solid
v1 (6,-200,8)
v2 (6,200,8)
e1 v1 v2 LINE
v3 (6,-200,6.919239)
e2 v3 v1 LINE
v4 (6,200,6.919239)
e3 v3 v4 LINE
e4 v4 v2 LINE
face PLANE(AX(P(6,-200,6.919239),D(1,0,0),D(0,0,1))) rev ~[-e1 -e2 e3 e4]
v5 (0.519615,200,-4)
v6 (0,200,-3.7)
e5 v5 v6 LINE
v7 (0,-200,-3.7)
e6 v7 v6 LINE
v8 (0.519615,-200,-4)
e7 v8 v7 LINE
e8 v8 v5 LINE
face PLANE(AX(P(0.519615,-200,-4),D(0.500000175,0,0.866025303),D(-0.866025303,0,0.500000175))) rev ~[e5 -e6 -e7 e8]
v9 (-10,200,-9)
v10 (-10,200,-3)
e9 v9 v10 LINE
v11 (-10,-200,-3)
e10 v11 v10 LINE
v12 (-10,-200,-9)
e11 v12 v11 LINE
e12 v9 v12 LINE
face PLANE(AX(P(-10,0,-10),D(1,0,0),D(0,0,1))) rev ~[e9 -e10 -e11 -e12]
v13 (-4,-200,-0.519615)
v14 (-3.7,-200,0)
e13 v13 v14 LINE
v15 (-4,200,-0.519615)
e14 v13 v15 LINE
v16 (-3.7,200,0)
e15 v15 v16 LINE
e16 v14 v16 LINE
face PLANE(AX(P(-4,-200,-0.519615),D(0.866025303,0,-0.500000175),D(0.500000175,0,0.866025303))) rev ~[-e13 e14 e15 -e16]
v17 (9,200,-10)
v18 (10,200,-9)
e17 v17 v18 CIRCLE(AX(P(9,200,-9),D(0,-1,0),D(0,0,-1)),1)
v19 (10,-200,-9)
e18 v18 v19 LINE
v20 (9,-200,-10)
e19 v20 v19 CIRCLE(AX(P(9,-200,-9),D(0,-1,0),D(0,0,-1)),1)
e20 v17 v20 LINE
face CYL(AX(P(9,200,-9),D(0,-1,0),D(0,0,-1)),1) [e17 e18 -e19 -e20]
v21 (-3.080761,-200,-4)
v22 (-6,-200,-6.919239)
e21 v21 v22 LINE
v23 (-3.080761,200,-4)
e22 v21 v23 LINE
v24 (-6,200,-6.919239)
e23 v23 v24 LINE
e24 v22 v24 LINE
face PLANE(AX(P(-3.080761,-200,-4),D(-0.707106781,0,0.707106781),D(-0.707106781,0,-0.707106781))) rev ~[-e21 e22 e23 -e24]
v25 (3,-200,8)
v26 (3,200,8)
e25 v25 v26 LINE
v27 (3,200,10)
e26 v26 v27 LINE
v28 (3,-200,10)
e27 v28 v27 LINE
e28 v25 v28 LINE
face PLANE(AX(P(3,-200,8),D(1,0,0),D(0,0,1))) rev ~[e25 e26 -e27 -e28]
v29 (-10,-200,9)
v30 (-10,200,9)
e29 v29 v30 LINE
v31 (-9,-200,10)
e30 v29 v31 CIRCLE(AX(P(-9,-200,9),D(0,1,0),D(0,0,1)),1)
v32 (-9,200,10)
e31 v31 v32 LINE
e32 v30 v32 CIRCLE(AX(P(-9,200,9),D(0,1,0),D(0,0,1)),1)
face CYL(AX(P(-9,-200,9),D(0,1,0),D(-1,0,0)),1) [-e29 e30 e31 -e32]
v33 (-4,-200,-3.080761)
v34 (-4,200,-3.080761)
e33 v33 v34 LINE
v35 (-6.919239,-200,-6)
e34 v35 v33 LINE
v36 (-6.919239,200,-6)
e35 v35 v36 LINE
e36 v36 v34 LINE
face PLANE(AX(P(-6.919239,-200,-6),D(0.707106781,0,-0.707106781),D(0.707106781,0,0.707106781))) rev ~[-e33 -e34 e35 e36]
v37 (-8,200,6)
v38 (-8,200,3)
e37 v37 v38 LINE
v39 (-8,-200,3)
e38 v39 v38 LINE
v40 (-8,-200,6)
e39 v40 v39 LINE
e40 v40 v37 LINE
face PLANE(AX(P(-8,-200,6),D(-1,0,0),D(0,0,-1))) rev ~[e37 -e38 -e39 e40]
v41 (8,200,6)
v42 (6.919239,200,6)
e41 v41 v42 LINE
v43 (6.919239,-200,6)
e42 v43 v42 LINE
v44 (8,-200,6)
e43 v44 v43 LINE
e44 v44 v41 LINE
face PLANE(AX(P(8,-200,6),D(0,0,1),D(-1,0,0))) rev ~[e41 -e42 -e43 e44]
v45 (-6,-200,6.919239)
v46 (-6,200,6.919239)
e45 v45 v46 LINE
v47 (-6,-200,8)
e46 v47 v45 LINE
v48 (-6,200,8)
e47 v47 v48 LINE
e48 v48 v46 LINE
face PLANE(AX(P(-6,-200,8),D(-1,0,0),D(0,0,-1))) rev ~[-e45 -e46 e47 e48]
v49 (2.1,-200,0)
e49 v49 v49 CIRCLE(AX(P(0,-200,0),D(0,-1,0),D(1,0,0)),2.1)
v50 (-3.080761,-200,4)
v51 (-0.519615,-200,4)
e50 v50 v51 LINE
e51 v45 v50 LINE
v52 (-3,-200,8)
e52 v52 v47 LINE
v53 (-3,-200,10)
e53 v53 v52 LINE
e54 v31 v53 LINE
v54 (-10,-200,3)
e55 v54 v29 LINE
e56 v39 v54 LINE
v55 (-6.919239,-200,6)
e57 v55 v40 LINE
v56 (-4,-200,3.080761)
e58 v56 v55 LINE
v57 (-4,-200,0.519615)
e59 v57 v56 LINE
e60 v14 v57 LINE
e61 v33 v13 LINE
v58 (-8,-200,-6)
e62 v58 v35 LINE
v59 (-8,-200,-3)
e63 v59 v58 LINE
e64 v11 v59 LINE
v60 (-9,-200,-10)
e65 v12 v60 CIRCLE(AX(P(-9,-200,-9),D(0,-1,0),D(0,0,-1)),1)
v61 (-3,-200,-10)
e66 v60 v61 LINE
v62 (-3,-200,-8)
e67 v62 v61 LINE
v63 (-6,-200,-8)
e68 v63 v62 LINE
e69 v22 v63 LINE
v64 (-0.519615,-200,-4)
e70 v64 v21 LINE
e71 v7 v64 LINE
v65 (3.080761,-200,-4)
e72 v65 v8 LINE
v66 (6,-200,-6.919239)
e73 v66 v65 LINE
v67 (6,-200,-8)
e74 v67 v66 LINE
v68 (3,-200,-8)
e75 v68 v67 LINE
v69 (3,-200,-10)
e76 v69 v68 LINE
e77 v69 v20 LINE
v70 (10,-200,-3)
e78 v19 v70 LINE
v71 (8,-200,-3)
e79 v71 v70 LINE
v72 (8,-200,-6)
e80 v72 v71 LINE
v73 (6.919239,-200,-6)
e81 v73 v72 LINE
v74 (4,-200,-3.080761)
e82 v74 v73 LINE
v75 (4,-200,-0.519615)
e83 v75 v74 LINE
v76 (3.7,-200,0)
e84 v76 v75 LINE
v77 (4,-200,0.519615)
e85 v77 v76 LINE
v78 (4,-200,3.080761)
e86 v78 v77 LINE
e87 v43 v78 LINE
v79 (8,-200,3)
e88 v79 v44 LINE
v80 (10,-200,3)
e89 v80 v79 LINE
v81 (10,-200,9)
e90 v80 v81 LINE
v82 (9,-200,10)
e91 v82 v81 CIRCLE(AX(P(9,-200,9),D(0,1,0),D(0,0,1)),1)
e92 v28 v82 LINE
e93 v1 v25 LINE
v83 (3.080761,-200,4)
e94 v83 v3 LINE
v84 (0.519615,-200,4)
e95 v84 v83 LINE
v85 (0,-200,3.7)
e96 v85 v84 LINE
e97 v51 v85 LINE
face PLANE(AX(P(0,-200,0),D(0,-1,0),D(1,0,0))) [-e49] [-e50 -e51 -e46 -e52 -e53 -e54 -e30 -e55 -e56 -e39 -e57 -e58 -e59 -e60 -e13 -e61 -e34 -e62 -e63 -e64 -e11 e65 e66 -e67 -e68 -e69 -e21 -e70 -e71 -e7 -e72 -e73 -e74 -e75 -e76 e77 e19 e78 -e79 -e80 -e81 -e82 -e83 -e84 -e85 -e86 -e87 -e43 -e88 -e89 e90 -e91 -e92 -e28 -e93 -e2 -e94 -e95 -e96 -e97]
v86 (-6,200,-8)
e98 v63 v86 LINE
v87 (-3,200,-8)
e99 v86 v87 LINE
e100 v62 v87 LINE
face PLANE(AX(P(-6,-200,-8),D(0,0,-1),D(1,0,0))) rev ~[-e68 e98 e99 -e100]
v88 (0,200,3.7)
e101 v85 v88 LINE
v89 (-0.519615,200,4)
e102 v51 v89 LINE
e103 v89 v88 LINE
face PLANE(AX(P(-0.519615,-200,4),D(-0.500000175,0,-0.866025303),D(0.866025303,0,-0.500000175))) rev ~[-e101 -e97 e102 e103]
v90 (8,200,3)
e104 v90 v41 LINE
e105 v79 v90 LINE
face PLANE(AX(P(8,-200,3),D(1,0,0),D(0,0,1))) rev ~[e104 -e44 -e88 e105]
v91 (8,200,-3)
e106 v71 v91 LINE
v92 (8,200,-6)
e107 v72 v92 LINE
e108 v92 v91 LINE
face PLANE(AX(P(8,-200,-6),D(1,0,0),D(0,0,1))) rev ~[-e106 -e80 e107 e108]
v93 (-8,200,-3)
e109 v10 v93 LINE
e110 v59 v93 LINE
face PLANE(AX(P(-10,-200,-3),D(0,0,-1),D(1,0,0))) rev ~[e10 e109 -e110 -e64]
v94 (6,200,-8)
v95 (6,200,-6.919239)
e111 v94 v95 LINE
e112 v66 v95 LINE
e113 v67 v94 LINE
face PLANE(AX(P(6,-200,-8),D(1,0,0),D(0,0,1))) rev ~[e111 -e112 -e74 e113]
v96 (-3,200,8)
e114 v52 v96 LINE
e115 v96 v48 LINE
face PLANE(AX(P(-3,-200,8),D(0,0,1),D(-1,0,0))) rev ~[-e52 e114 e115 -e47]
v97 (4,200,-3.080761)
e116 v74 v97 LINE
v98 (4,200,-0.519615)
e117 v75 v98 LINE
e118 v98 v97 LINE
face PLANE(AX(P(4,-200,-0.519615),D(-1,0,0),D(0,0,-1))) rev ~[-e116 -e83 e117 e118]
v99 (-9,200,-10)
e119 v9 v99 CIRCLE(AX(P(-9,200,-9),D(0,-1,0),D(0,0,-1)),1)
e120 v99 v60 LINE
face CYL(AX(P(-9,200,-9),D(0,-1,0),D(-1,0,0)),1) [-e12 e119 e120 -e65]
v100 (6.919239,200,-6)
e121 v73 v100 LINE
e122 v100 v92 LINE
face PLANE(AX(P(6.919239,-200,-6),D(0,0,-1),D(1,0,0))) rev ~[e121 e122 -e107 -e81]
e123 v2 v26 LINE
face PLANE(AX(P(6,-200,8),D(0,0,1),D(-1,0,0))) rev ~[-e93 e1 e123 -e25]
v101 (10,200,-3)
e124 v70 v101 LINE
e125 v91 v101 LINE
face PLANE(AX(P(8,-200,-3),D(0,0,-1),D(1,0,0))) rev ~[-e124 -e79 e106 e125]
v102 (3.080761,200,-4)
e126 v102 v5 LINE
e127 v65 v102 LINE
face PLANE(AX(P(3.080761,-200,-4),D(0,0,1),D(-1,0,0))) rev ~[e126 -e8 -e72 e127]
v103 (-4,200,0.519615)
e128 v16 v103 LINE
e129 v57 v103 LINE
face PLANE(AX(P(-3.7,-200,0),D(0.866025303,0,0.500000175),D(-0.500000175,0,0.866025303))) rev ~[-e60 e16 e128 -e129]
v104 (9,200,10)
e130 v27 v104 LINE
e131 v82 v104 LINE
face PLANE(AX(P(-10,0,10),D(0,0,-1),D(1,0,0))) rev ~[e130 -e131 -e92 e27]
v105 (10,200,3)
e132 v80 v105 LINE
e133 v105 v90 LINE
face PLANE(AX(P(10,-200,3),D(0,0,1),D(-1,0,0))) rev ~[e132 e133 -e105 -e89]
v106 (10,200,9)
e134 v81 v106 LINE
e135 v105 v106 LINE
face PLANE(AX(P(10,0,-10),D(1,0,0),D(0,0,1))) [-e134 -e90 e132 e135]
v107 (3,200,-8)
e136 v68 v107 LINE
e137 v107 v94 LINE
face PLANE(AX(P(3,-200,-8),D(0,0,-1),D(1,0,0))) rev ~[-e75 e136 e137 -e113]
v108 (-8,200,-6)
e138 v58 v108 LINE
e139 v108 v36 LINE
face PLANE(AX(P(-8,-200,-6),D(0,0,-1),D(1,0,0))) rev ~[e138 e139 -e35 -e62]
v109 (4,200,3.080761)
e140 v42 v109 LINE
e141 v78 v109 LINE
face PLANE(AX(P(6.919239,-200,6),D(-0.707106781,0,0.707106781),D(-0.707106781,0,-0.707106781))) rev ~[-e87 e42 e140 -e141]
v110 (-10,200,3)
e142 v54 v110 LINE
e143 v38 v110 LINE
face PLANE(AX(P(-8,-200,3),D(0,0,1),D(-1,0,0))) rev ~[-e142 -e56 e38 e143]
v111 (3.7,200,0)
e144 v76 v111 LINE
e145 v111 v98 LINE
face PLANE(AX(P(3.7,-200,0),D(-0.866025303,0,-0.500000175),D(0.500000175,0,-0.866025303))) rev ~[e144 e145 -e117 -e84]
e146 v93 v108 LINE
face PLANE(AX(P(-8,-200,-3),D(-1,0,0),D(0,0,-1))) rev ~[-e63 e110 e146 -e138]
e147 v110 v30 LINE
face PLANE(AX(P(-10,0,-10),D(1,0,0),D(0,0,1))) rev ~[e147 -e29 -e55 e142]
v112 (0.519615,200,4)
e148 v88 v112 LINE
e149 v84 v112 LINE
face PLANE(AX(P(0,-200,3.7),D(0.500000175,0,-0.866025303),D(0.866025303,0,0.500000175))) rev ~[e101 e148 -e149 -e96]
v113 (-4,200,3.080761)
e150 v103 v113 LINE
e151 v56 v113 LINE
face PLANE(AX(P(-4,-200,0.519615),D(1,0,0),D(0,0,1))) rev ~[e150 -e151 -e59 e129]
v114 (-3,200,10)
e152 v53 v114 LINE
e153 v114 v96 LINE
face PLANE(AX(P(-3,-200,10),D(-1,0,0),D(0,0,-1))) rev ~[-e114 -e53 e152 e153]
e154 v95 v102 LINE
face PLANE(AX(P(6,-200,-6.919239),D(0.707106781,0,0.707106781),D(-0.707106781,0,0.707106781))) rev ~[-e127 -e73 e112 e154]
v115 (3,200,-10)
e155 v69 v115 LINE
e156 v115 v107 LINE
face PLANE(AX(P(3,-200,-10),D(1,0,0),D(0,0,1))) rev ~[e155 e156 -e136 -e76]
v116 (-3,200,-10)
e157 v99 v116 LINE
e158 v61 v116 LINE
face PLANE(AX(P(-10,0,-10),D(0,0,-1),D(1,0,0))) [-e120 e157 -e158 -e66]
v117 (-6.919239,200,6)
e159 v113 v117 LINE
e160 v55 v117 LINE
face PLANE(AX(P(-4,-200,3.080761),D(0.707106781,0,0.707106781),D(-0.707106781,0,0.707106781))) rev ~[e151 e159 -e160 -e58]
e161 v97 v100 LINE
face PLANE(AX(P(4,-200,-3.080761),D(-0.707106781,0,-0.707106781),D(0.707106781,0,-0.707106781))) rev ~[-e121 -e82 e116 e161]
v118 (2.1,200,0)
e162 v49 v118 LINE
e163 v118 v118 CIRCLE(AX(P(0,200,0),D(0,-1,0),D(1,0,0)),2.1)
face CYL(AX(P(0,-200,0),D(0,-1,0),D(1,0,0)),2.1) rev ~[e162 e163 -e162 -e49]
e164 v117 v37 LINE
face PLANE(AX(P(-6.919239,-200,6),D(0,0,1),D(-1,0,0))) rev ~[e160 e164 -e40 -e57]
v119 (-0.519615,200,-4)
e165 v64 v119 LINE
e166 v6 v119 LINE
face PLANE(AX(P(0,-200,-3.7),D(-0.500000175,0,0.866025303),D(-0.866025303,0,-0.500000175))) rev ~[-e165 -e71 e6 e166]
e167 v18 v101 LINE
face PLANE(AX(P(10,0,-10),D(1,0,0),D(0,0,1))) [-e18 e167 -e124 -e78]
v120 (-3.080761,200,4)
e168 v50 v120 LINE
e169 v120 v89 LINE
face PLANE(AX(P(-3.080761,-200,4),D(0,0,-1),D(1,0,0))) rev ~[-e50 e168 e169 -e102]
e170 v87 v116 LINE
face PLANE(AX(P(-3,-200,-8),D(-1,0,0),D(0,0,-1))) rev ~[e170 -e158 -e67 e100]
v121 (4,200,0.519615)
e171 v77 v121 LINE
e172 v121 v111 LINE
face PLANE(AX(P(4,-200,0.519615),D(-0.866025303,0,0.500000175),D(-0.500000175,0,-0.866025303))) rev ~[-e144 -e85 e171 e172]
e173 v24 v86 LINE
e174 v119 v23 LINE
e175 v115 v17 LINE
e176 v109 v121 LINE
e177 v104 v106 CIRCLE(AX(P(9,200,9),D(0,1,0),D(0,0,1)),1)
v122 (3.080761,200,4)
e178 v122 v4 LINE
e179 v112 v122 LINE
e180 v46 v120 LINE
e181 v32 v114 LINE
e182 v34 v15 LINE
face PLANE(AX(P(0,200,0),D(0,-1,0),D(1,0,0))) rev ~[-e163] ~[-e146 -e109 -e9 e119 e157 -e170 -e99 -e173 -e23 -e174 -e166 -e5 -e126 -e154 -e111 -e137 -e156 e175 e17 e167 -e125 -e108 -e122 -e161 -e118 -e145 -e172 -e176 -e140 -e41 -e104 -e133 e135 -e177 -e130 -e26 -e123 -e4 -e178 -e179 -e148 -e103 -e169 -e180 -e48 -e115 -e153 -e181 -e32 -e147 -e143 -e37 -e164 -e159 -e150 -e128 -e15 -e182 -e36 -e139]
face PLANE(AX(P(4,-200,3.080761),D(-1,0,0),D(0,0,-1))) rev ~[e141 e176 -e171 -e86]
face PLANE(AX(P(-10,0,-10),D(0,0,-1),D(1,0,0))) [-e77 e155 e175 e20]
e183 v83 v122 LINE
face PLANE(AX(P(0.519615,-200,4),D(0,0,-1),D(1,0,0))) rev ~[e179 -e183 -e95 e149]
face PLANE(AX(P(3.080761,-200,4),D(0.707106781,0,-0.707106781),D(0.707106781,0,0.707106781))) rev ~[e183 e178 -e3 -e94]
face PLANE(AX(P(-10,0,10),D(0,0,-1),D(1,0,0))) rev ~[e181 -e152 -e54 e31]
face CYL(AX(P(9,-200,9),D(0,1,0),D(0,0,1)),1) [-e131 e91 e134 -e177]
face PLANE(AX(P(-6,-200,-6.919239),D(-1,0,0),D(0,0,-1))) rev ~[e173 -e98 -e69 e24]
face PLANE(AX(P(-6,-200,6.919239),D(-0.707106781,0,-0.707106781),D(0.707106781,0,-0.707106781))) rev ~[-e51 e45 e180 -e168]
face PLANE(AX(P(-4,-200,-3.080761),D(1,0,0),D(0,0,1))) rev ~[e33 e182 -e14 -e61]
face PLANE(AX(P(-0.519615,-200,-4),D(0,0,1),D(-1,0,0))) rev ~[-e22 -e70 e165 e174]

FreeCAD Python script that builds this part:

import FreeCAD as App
import Part
import Sketcher

V = App.Vector
Q = App.Units.Quantity


def edges_at(feature, points):
    """Names of the edges that pass closest to the given points."""
    edges = feature.Shape.Edges
    near = lambda p: min(range(len(edges)), key=lambda i: edges[i].distToShape(Part.Vertex(*p))[0])
    return sorted({f"Edge{near(p) + 1}" for p in points})

doc = App.newDocument("Part")
body = doc.addObject("PartDesign::Body", "Body")

sketch1 = body.newObject("Sketcher::SketchObject", "Sketch")
sketch1.AttachmentSupport = (doc.getObject("XZ_Plane"), [""])
sketch1.MapMode = "FlatFace"
sketch1.addGeometry(Part.LineSegment(V(-10, 10, 0), V(-10, -10, 0)), False)
sketch1.addGeometry(Part.LineSegment(V(-10, -10, 0), V(10, -10, 0)), False)
sketch1.addGeometry(Part.LineSegment(V(10, -10, 0), V(10, 10, 0)), False)
sketch1.addGeometry(Part.LineSegment(V(10, 10, 0), V(-10, 10, 0)), False)
sketch1.addConstraint(Sketcher.Constraint("Coincident", 0, 2, 1, 1))
sketch1.addConstraint(Sketcher.Constraint("Coincident", 1, 2, 2, 1))
sketch1.addConstraint(Sketcher.Constraint("Coincident", 2, 2, 3, 1))
sketch1.addConstraint(Sketcher.Constraint("Coincident", 3, 2, 0, 1))
sketch1.addConstraint(Sketcher.Constraint("Vertical", 0))
sketch1.addConstraint(Sketcher.Constraint("Horizontal", 1))
sketch1.addConstraint(Sketcher.Constraint("Vertical", 2))
sketch1.addConstraint(Sketcher.Constraint("Horizontal", 3))
sketch1.addConstraint(Sketcher.Constraint("Symmetric", 0, 2, 2, 2, -1, 1))
sketch1.addConstraint(Sketcher.Constraint("Equal", 3, 0))
sketch1.addConstraint(Sketcher.Constraint("DistanceX", 1, 1, 1, 2, Q("20 mm")))
pad1 = body.newObject("PartDesign::Pad", "Pad")
pad1.Profile = sketch1
pad1.Length = 400
pad1.Midplane = True

sketch2 = body.newObject("Sketcher::SketchObject", "Sketch001")
sketch2.AttachmentSupport = (doc.getObject("XZ_Plane"), [""])
sketch2.MapMode = "FlatFace"
sketch2.AttachmentOffset = App.Placement(V(0, 0, 200), App.Rotation())
sketch2.addGeometry(Part.LineSegment(V(-3, 10, 0), V(-3, 8, 0)), False)
sketch2.addGeometry(Part.LineSegment(V(-3, 8, 0), V(-6, 8, 0)), False)
sketch2.addGeometry(Part.LineSegment(V(-6, 8, 0), V(-6, 6.9, 0)), False)
sketch2.addGeometry(Part.LineSegment(V(-6, 6.9, 0), V(-3.1, 4, 0)), False)
sketch2.addGeometry(Part.LineSegment(V(-3.1, 4, 0), V(-0.5, 4, 0)), False)
sketch2.addGeometry(Part.LineSegment(V(-0.5, 4, 0), V(0, 3.7, 0)), False)
sketch2.addGeometry(Part.LineSegment(V(0, 3.7, 0), V(0.5, 4, 0)), False)
sketch2.addGeometry(Part.LineSegment(V(0.5, 4, 0), V(3.1, 4, 0)), False)
sketch2.addGeometry(Part.LineSegment(V(3.1, 4, 0), V(6, 6.9, 0)), False)
sketch2.addGeometry(Part.LineSegment(V(6, 6.9, 0), V(6, 8, 0)), False)
sketch2.addGeometry(Part.LineSegment(V(6, 8, 0), V(3, 8, 0)), False)
sketch2.addGeometry(Part.LineSegment(V(3, 8, 0), V(3, 10, 0)), False)
sketch2.addGeometry(Part.LineSegment(V(3, 10, 0), V(-3, 10, 0)), False)
sketch2.addConstraint(Sketcher.Constraint("Coincident", 0, 2, 1, 1))
sketch2.addConstraint(Sketcher.Constraint("Coincident", 1, 2, 2, 1))
sketch2.addConstraint(Sketcher.Constraint("Coincident", 2, 2, 3, 1))
sketch2.addConstraint(Sketcher.Constraint("Coincident", 3, 2, 4, 1))
sketch2.addConstraint(Sketcher.Constraint("Coincident", 4, 2, 5, 1))
sketch2.addConstraint(Sketcher.Constraint("Coincident", 5, 2, 6, 1))
sketch2.addConstraint(Sketcher.Constraint("Coincident", 6, 2, 7, 1))
sketch2.addConstraint(Sketcher.Constraint("Coincident", 7, 2, 8, 1))
sketch2.addConstraint(Sketcher.Constraint("Coincident", 8, 2, 9, 1))
sketch2.addConstraint(Sketcher.Constraint("Coincident", 9, 2, 10, 1))
sketch2.addConstraint(Sketcher.Constraint("Coincident", 10, 2, 11, 1))
sketch2.addConstraint(Sketcher.Constraint("Coincident", 11, 2, 12, 1))
sketch2.addConstraint(Sketcher.Constraint("Coincident", 12, 2, 0, 1))
sketch2.addConstraint(Sketcher.Constraint("Vertical", 0))
sketch2.addConstraint(Sketcher.Constraint("Horizontal", 1))
sketch2.addConstraint(Sketcher.Constraint("Vertical", 2))
sketch2.addConstraint(Sketcher.Constraint("Horizontal", 4))
sketch2.addConstraint(Sketcher.Constraint("Horizontal", 7))
sketch2.addConstraint(Sketcher.Constraint("Vertical", 9))
sketch2.addConstraint(Sketcher.Constraint("Horizontal", 10))
sketch2.addConstraint(Sketcher.Constraint("Vertical", 11))
sketch2.addConstraint(Sketcher.Constraint("Horizontal", 12))
sketch2.addConstraint(Sketcher.Constraint("Symmetric", 4, 2, 6, 2, -2))
sketch2.addConstraint(Sketcher.Constraint("Symmetric", 2, 2, 8, 2, -2))
sketch2.addConstraint(Sketcher.Constraint("Symmetric", 0, 2, 10, 2, -2))
sketch2.addConstraint(Sketcher.Constraint("PointOnObject", 5, 2, -2))
sketch2.addConstraint(Sketcher.Constraint("Perpendicular", 3, 8))
sketch2.addConstraint(Sketcher.Constraint("Equal", 4, 7))
sketch2.addConstraint(Sketcher.Constraint("DistanceX", 1, 2, 1, 1, Q("3 mm")))
sketch2.addConstraint(Sketcher.Constraint("DistanceX", 12, 2, 12, 1, Q("6 mm")))
sketch2.addConstraint(Sketcher.Constraint("DistanceY", 0, 2, 0, 1, Q("2 mm")))
sketch2.addConstraint(Sketcher.Constraint("Angle", 5, Q("-30.000012 deg")))
sketch2.addConstraint(Sketcher.Constraint("DistanceY", -1, 1, 0, 2, Q("8 mm")))
sketch2.addConstraint(Sketcher.Constraint("DistanceY", -1, 1, 3, 2, Q("4 mm")))
sketch2.addConstraint(Sketcher.Constraint("Distance", 5, Q("0.6 mm")))
sketch2.addConstraint(Sketcher.Constraint("DistanceY", 2, 2, 2, 1, Q("1.080761 mm")))
pocket1 = body.newObject("PartDesign::Pocket", "Pocket")
pocket1.Profile = sketch2
pocket1.Type = "ThroughAll"
doc.recompute()

polarpattern = body.newObject("PartDesign::PolarPattern", "PolarPattern")
polarpattern.Originals = [pocket1]
polarpattern.Axis = (doc.getObject("Y_Axis"), [""])
polarpattern.Angle = 360
polarpattern.Occurrences = 4
body.Tip = polarpattern

sketch3 = body.newObject("Sketcher::SketchObject", "Sketch002")
sketch3.AttachmentSupport = (doc.getObject("XZ_Plane"), [""])
sketch3.MapMode = "FlatFace"
sketch3.AttachmentOffset = App.Placement(V(0, 0, 200), App.Rotation())
sketch3.addGeometry(Part.Circle(V(0, 0, 0), V(0, 0, 1), 2.1), False)
sketch3.addConstraint(Sketcher.Constraint("Coincident", 0, 3, -1, 1))
sketch3.addConstraint(Sketcher.Constraint("Diameter", 0, Q("4.2 mm")))
pocket2 = body.newObject("PartDesign::Pocket", "Pocket001")
pocket2.Profile = sketch3
pocket2.Type = "ThroughAll"
doc.recompute()

fillet = body.newObject("PartDesign::Fillet", "Fillet")
fillet.Base = (pocket2, edges_at(pocket2, [
    (-10, 0, 10),
    (10, 0, 10),
    (10, 0, -10),
    (-10, 0, -10),
]))
fillet.Radius = 1

doc.recompute()
